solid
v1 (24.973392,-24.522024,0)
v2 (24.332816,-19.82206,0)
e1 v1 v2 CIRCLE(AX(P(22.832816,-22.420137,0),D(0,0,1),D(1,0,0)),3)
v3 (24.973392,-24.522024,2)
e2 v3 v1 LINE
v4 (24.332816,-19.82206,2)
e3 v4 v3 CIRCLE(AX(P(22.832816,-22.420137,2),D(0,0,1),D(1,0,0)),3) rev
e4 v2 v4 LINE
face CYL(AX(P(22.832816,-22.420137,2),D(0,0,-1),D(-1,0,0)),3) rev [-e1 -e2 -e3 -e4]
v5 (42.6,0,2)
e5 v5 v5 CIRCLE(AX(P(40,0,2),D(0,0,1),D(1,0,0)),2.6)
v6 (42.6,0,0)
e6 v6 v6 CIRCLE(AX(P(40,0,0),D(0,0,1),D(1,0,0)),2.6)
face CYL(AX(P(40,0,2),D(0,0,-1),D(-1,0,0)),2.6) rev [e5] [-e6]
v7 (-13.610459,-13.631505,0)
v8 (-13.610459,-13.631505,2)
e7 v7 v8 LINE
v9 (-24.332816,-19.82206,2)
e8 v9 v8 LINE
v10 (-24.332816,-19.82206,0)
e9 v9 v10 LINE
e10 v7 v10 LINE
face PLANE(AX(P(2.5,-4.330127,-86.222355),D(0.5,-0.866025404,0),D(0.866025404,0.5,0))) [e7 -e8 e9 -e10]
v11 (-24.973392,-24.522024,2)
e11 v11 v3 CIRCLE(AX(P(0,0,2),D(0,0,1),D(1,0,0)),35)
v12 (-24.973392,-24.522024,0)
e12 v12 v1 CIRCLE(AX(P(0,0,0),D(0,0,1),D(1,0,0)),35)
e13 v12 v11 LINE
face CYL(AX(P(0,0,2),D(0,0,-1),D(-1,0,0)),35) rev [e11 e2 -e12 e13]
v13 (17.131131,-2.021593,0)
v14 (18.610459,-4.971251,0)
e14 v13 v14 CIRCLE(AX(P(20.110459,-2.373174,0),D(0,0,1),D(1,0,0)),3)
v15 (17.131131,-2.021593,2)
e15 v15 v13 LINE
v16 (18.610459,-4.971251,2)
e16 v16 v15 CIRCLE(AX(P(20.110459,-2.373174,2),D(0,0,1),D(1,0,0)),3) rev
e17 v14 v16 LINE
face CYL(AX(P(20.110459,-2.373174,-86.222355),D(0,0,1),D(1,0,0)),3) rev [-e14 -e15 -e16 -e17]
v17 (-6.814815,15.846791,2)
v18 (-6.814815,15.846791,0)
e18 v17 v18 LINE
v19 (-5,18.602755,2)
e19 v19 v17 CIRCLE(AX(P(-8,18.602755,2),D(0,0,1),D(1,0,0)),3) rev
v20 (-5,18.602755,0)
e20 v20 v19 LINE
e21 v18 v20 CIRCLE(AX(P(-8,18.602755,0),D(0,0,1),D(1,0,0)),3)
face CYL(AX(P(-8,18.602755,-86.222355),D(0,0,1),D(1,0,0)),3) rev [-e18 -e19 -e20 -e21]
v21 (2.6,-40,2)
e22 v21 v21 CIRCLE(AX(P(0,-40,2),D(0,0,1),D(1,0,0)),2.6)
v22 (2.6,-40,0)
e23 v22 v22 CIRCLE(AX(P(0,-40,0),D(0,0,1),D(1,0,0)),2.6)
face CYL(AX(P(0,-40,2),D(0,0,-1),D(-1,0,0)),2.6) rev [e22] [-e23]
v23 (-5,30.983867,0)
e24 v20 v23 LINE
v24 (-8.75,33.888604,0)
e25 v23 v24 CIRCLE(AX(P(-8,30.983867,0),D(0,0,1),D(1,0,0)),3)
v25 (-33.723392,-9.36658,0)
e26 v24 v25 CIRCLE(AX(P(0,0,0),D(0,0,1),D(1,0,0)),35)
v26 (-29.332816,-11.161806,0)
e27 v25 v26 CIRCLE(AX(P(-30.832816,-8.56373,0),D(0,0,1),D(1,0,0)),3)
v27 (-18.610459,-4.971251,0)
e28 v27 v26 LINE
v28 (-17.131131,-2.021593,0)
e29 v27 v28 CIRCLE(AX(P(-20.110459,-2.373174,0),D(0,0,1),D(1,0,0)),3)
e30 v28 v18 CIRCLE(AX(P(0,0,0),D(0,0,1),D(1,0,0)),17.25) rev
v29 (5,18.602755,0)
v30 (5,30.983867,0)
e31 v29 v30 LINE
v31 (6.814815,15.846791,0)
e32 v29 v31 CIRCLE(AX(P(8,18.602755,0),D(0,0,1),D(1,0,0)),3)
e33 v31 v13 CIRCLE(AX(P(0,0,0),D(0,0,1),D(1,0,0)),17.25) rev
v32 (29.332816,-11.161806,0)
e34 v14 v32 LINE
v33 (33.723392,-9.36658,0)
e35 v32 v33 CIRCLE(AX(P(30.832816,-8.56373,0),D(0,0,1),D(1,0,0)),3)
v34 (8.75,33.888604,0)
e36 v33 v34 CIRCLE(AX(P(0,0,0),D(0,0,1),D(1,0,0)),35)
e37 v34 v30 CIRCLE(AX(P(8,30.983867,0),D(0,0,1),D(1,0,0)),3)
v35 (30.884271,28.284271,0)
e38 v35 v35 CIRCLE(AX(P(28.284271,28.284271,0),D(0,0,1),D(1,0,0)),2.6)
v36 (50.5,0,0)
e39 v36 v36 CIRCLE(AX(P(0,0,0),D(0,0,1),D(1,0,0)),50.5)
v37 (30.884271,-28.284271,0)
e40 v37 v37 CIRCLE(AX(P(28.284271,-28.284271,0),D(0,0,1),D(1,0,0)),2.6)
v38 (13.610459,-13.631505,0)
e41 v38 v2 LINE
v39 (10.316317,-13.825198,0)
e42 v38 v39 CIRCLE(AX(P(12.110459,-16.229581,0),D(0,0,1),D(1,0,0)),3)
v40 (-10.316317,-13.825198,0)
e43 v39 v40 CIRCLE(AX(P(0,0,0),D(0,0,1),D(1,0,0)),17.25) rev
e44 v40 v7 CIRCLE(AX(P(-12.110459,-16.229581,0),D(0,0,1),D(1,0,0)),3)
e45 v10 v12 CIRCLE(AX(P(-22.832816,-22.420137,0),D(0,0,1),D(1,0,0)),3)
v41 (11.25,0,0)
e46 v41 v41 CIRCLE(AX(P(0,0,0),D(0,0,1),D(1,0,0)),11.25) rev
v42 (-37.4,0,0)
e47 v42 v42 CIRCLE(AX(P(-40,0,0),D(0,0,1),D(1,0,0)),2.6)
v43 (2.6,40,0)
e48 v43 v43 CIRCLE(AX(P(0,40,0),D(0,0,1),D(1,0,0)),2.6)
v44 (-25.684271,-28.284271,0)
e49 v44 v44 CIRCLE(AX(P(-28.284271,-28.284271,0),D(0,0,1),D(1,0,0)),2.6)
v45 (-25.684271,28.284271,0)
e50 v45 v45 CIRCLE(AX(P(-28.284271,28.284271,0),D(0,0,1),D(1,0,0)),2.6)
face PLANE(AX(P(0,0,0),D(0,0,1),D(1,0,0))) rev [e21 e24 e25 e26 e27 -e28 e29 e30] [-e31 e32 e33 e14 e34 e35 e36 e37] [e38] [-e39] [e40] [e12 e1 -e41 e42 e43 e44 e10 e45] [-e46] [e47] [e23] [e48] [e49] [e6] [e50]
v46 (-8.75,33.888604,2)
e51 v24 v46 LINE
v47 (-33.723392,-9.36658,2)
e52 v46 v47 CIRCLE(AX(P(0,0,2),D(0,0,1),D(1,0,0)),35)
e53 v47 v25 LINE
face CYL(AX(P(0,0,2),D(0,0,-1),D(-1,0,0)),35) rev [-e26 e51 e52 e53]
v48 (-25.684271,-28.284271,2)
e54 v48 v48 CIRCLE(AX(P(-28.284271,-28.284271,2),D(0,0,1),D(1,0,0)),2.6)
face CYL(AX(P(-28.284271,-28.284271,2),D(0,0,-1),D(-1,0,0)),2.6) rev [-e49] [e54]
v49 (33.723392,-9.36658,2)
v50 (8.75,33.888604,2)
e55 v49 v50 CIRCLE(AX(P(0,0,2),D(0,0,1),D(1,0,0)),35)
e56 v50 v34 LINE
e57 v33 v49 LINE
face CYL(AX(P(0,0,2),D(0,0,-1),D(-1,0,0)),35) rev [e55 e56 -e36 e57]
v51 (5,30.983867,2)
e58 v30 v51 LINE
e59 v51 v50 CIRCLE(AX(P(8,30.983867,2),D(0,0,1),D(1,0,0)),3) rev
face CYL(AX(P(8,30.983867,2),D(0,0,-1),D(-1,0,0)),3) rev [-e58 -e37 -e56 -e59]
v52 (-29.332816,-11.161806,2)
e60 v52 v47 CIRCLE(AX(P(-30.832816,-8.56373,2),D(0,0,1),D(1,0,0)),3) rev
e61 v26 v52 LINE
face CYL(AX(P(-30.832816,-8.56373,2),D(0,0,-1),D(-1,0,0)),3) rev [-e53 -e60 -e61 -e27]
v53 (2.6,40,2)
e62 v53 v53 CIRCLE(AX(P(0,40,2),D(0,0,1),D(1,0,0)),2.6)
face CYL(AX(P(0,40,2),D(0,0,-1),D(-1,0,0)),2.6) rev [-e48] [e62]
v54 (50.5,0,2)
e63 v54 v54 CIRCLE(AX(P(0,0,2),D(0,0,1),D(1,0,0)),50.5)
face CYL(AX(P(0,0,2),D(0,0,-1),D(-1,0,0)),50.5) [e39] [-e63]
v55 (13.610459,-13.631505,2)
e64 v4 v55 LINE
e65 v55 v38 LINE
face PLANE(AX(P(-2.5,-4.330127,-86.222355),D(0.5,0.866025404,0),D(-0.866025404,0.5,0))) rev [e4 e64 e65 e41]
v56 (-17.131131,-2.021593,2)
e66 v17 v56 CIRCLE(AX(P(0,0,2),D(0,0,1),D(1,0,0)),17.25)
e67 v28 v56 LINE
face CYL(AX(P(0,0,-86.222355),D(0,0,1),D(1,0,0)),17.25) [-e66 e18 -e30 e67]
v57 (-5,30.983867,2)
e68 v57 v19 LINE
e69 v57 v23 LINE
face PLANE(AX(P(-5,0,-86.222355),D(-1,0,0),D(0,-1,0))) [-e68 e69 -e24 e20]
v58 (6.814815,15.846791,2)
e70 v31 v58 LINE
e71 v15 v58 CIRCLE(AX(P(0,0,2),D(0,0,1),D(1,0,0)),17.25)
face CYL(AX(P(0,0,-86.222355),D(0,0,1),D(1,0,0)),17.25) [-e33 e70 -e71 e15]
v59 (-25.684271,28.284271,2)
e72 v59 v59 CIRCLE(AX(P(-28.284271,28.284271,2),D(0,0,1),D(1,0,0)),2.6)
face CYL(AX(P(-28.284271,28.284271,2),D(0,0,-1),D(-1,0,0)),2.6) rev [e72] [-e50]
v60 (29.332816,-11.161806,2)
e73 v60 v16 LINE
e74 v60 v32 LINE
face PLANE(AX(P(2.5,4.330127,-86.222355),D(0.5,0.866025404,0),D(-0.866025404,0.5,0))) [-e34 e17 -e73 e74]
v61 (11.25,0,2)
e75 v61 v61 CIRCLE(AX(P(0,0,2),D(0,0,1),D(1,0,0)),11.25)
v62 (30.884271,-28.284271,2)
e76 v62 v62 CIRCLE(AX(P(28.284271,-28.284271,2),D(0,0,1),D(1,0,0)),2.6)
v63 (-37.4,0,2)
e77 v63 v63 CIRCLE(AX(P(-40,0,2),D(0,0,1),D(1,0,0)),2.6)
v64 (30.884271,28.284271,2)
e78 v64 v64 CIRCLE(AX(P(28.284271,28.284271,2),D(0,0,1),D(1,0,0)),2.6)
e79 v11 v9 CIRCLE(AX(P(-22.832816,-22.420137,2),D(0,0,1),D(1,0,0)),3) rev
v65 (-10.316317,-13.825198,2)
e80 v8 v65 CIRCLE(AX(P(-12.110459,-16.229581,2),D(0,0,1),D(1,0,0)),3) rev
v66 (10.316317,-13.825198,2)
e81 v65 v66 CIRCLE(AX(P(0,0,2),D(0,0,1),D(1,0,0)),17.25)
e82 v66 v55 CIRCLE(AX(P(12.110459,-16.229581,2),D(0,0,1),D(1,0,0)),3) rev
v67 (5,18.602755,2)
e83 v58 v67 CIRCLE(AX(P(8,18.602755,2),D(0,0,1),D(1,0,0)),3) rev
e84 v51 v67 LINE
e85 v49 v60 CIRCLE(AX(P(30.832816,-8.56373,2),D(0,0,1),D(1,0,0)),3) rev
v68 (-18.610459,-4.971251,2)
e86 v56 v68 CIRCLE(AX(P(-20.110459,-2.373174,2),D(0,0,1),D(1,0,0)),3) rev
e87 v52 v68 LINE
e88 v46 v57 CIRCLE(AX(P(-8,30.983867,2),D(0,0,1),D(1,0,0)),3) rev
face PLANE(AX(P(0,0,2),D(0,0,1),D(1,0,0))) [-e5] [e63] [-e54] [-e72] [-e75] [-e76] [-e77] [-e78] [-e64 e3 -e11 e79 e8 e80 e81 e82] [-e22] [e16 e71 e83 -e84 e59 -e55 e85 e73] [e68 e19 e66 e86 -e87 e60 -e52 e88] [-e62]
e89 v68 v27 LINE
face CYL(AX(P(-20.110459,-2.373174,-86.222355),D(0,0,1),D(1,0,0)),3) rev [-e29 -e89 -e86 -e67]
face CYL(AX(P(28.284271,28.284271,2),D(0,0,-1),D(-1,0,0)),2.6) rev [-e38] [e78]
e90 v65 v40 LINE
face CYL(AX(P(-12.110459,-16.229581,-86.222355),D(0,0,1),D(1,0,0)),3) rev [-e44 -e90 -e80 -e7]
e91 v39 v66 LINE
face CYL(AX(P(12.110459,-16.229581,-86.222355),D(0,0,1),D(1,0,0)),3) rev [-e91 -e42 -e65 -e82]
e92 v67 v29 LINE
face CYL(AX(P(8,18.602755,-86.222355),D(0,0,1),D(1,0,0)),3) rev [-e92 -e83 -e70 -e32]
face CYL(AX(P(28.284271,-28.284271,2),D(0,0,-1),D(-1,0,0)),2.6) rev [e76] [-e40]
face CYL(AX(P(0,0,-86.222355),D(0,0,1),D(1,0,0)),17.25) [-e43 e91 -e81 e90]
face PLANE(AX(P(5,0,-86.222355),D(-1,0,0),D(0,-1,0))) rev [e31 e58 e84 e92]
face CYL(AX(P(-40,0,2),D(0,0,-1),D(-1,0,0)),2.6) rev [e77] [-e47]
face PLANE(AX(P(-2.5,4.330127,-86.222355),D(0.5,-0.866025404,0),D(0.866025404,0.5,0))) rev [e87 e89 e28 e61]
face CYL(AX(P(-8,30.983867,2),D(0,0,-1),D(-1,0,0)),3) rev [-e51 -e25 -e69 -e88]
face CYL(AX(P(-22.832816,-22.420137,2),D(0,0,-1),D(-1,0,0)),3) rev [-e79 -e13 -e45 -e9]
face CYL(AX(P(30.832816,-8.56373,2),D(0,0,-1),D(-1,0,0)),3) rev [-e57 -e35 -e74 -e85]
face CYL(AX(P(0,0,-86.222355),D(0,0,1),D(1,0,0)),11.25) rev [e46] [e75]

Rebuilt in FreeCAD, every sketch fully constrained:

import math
import FreeCAD as App
import Part
import Sketcher

V = App.Vector
Q = App.Units.Quantity


def edges_at(feature, points):
    """Names of the edges that pass closest to the given points."""
    edges = feature.Shape.Edges
    near = lambda p: min(range(len(edges)), key=lambda i: edges[i].distToShape(Part.Vertex(*p))[0])
    return sorted({f"Edge{near(p) + 1}" for p in points})

doc = App.newDocument("Part")
params = doc.addObject("Spreadsheet::Sheet", "Params")
for row, (alias, value) in enumerate([
    ("sketch1_diameter", "101 mm"),
    ("sketch1_diameter2", "70 mm"),
    ("sketch1_diameter3", "5.2 mm"),
    ("pad1_length", "2 mm"),
    ("sketch2_radius", "35 mm"),
    ("sketch2_diameter", "22.5 mm"),
    ("sketch2_radius2", "17.25 mm"),
    ("pad2_length", "2 mm"),
    ("fillet_radius", "3 mm"),
], start=1):
    params.set(f"A{row}", alias)
    params.set(f"B{row}", "=" + value)
    params.setAlias(f"B{row}", alias)

body = doc.addObject("PartDesign::Body", "Body")

# Sketch on XY plane
sketch1 = body.newObject("Sketcher::SketchObject", "Sketch")
sketch1.AttachmentSupport = (doc.getObject("XY_Plane"), [""])
sketch1.MapMode = "FlatFace"
sketch1.addGeometry([
    Part.Circle(V(0, 0, 0), V(0, 0, 1), 50.5),  # 0
    Part.Circle(V(-28.3, -28.3, 0), V(0, 0, 1), 2.6),  # 1
    Part.Circle(V(0, -40, 0), V(0, 0, 1), 2.6),  # 2
    Part.Circle(V(28.3, -28.3, 0), V(0, 0, 1), 2.6),  # 3
    Part.Circle(V(-40, 0, 0), V(0, 0, 1), 2.6),  # 4
    Part.Circle(V(-28.3, 28.3, 0), V(0, 0, 1), 2.6),  # 5
    Part.Circle(V(0, 0, 0), V(0, 0, 1), 35),  # 6
    Part.Circle(V(40, 0, 0), V(0, 0, 1), 2.6),  # 7
    Part.Circle(V(0, 40, 0), V(0, 0, 1), 2.6),  # 8
    Part.Circle(V(28.3, 28.3, 0), V(0, 0, 1), 2.6),  # 9
], False)
sketch1.addConstraint([
    Sketcher.Constraint("Coincident", 0, 3, -1, 1),
    Sketcher.Constraint("Coincident", 6, 3, -1, 1),
    Sketcher.Constraint("Equal", 1, 2),
    Sketcher.Constraint("Equal", 2, 3),
    Sketcher.Constraint("Equal", 3, 4),
    Sketcher.Constraint("Equal", 4, 5),
    Sketcher.Constraint("Equal", 5, 7),
    Sketcher.Constraint("Equal", 7, 8),
    Sketcher.Constraint("Equal", 8, 9),
    Sketcher.Constraint("Symmetric", 3, 3, 5, 3, -1, 1),
    Sketcher.Constraint("Symmetric", 4, 3, 7, 3, -1, 1),
    Sketcher.Constraint("Symmetric", 2, 3, 8, 3, -1, 1),
    Sketcher.Constraint("Symmetric", 1, 3, 9, 3, -1, 1),
    Sketcher.Constraint("Symmetric", 1, 3, 3, 3, -2),
    Sketcher.Constraint("PointOnObject", 2, 3, -2),
    Sketcher.Constraint("PointOnObject", 4, 3, -1),
    Sketcher.Constraint("Diameter", 0, Q("101 mm")),
    Sketcher.Constraint("Diameter", 6, Q("70 mm")),
    Sketcher.Constraint("Diameter", 1, Q("5.2 mm")),
    Sketcher.Constraint("DistanceY", 2, 3, -1, 1, Q("40 mm")),
    Sketcher.Constraint("DistanceX", 4, 3, -1, 1, Q("40 mm")),
    Sketcher.Constraint("DistanceX", 1, 3, -1, 1, Q("28.284271 mm")),
    Sketcher.Constraint("DistanceY", 1, 3, -1, 1, Q("28.284271 mm")),
])
sketch1.setExpression("Constraints[16]", "Params.sketch1_diameter")
sketch1.setExpression("Constraints[17]", "Params.sketch1_diameter2")
sketch1.setExpression("Constraints[18]", "Params.sketch1_diameter3")
pad1 = body.newObject("PartDesign::Pad", "Pad")
pad1.Profile = sketch1
pad1.setExpression("Length", "Params.pad1_length")

# Sketch on XY plane
sketch2 = body.newObject("Sketcher::SketchObject", "Sketch001")
sketch2.AttachmentSupport = (doc.getObject("XY_Plane"), [""])
sketch2.MapMode = "FlatFace"
sketch2.addGeometry([
    Part.ArcOfCircle(Part.Circle(V(0, 0, 0), V(0, 0, 1), 35), math.radians(81.79), math.radians(98.21)),  # 0
    Part.LineSegment(V(-5, 35, 0), V(-5, 17, 0)),  # 1
    Part.ArcOfCircle(Part.Circle(V(0, 0, 0), V(0, 0, 1), 17), math.radians(107), math.radians(193)),  # 2
    Part.LineSegment(V(-17, -4, 0), V(-32, -13, 0)),  # 3
    Part.ArcOfCircle(Part.Circle(V(0, 0, 0), V(0, 0, 1), 35), math.radians(-158.21), math.radians(-141.79)),  # 4
    Part.LineSegment(V(-28, -22, 0), V(-12, -13, 0)),  # 5
    Part.ArcOfCircle(Part.Circle(V(0, 0, 0), V(0, 0, 1), 17), math.radians(-133), math.radians(-47)),  # 6
    Part.LineSegment(V(12, -13, 0), V(28, -22, 0)),  # 7
    Part.ArcOfCircle(Part.Circle(V(0, 0, 0), V(0, 0, 1), 35), math.radians(-38.21), math.radians(-21.79)),  # 8
    Part.LineSegment(V(32, -13, 0), V(17, -4, 0)),  # 9
    Part.ArcOfCircle(Part.Circle(V(0, 0, 0), V(0, 0, 1), 17), math.radians(-13), math.radians(73)),  # 10
    Part.LineSegment(V(5, 17, 0), V(5, 35, 0)),  # 11
    Part.Circle(V(0, 0, 0), V(0, 0, 1), 11),  # 12
], False)
sketch2.addConstraint([
    Sketcher.Constraint("Coincident", 0, 2, 1, 1),
    Sketcher.Constraint("Coincident", 1, 2, 2, 1),
    Sketcher.Constraint("Coincident", 2, 2, 3, 1),
    Sketcher.Constraint("Coincident", 3, 2, 4, 1),
    Sketcher.Constraint("Coincident", 4, 2, 5, 1),
    Sketcher.Constraint("Coincident", 5, 2, 6, 1),
    Sketcher.Constraint("Coincident", 6, 2, 7, 1),
    Sketcher.Constraint("Coincident", 7, 2, 8, 1),
    Sketcher.Constraint("Coincident", 8, 2, 9, 1),
    Sketcher.Constraint("Coincident", 9, 2, 10, 1),
    Sketcher.Constraint("Coincident", 10, 2, 11, 1),
    Sketcher.Constraint("Coincident", 11, 2, 0, 1),
    Sketcher.Constraint("Vertical", 1),
    Sketcher.Constraint("Vertical", 11),
    Sketcher.Constraint("Coincident", 0, 3, -1, 1),
    Sketcher.Constraint("Coincident", 2, 3, -1, 1),
    Sketcher.Constraint("Coincident", 4, 3, -1, 1),
    Sketcher.Constraint("Coincident", 6, 3, -1, 1),
    Sketcher.Constraint("Coincident", 8, 3, -1, 1),
    Sketcher.Constraint("Coincident", 10, 3, -1, 1),
    Sketcher.Constraint("Coincident", 12, 3, -1, 1),
    Sketcher.Constraint("Equal", 0, 4),
    Sketcher.Constraint("Equal", 2, 6),
    Sketcher.Constraint("Equal", 4, 8),
    Sketcher.Constraint("Equal", 6, 10),
    Sketcher.Constraint("Parallel", 3, 5),
    Sketcher.Constraint("Parallel", 7, 9),
    Sketcher.Constraint("Horizontal", 5, 2, 6, 2),
    Sketcher.Constraint("Horizontal", 4, 2, 7, 2),
    Sketcher.Constraint("Horizontal", 3, 2, 8, 2),
    Sketcher.Constraint("Horizontal", 1, 2, 10, 2),
    Sketcher.Constraint("Equal", 3, 5),
    Sketcher.Constraint("Radius", 0, Q("35 mm")),
    Sketcher.Constraint("Diameter", 12, Q("22.5 mm")),
    Sketcher.Constraint("Angle", 3, Q("-150 deg")),
    Sketcher.Constraint("Radius", 2, Q("17.25 mm")),
    Sketcher.Constraint("DistanceX", 0, 2, -1, 1, Q("5 mm")),
    Sketcher.Constraint("DistanceX", 3, 2, 4, 2, Q("5 mm")),
])
sketch2.setExpression("Constraints[32]", "Params.sketch2_radius")
sketch2.setExpression("Constraints[33]", "Params.sketch2_diameter")
sketch2.setExpression("Constraints[35]", "Params.sketch2_radius2")
pad2 = body.newObject("PartDesign::Pad", "Pad001")
pad2.Profile = sketch2
pad2.setExpression("Length", "Params.pad2_length")
doc.recompute()

fillet = body.newObject("PartDesign::Fillet", "Fillet")
fillet.Base = (pad2, edges_at(pad2, [
    (-16.798, -3.925, 1),
    (-32.5, -12.99, 1),
    (-27.5, -21.651, 1),
    (-11.798, -12.585, 1),
    (11.798, -12.585, 1),
    (27.5, -21.651, 1),
    (32.5, -12.99, 1),
    (16.798, -3.925, 1),
    (5, 16.509, 1),
    (5, 34.641, 1),
    (-5, 34.641, 1),
    (-5, 16.509, 1),
]))
fillet.setExpression("Radius", "Params.fillet_radius")

doc.recompute()
